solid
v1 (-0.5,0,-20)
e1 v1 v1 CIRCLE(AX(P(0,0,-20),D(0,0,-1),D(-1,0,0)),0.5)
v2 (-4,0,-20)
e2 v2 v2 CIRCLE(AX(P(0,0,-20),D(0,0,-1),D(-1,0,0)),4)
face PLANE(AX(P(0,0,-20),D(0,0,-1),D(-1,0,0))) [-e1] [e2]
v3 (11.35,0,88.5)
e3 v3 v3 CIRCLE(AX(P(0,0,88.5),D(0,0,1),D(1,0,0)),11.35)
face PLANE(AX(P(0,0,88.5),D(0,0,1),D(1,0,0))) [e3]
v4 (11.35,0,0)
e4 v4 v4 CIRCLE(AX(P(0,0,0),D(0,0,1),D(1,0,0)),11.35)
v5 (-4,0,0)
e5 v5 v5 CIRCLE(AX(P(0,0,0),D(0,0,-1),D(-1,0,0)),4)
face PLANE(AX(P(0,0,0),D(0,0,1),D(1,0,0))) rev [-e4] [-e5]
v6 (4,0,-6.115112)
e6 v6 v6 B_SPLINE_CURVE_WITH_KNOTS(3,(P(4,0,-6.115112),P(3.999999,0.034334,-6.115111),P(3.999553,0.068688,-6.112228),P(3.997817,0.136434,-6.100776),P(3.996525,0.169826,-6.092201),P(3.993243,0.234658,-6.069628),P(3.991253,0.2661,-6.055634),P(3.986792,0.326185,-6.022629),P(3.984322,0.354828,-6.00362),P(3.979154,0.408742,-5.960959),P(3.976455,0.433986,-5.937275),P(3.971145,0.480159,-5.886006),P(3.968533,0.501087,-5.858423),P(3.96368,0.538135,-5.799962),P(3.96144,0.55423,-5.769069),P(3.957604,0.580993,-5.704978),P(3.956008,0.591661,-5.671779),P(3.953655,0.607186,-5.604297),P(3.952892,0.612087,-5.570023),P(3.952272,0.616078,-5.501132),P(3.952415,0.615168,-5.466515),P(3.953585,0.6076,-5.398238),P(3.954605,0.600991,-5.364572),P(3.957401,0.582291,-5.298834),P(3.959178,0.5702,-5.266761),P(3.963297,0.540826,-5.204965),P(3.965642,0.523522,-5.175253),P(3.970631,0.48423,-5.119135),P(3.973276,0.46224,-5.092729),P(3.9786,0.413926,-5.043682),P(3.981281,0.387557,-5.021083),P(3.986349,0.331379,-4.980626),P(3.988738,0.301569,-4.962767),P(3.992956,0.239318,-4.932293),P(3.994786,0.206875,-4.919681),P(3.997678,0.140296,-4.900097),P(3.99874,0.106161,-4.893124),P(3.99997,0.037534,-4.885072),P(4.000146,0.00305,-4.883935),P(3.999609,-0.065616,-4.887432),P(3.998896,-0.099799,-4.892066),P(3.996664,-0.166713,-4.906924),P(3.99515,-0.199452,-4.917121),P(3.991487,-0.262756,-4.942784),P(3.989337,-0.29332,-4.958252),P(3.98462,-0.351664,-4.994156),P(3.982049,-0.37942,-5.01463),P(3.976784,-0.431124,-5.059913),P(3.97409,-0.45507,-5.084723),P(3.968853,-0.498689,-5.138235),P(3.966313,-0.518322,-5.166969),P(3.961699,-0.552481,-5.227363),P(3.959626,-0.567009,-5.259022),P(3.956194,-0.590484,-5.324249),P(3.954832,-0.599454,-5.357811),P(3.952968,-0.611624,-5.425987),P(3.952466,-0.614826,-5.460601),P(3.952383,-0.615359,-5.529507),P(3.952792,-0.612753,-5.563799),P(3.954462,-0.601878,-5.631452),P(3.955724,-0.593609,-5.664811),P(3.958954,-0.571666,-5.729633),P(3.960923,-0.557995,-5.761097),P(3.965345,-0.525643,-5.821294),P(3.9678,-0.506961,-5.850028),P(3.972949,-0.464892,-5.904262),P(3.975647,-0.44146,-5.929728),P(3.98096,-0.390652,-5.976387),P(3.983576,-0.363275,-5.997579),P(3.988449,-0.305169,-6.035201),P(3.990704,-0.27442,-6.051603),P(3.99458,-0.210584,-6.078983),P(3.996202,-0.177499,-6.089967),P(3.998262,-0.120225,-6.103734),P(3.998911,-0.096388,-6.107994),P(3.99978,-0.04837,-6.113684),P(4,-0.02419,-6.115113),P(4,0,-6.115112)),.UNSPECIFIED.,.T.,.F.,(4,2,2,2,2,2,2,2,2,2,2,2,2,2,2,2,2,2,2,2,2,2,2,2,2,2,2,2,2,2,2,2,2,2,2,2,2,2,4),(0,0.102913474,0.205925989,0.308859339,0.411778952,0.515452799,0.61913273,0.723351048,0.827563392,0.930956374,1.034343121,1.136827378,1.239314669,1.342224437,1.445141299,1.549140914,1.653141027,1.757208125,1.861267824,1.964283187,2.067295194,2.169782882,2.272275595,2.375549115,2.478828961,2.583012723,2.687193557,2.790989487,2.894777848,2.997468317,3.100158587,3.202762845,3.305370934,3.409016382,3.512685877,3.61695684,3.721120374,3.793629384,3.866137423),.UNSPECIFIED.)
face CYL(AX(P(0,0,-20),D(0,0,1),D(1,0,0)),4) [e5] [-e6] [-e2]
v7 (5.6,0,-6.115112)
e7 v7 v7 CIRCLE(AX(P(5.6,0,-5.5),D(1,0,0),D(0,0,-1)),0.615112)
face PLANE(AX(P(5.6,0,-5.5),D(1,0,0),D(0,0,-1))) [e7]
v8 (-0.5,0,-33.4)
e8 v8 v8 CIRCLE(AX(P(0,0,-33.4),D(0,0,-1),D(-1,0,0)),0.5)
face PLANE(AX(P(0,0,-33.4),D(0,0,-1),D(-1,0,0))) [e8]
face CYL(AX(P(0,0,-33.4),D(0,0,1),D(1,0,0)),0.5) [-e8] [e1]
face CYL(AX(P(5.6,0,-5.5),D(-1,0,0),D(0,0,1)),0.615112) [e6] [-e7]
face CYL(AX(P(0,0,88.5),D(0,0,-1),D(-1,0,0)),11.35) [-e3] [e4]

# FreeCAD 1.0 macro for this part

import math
import FreeCAD as App
import Part
import Sketcher

V = App.Vector


def add_polygon(sketch, points):
    """Adds a closed chain of lines whose ends are joined by coincident constraints."""
    first, n = sketch.GeometryCount, len(points)
    for a, b in zip(points, points[1:] + points[:1]):
        sketch.addGeometry(Part.LineSegment(App.Vector(*a, 0), App.Vector(*b, 0)), False)
    for i in range(n):
        sketch.addConstraint(Sketcher.Constraint("Coincident", first + i, 2, first + (i + 1) % n, 1))

doc = App.newDocument("Part")
body = doc.addObject("PartDesign::Body", "Body")

# Sketch on XY plane
sketch1 = body.newObject("Sketcher::SketchObject", "Sketch")
sketch1.AttachmentSupport = (doc.getObject("XY_Plane"), [""])
sketch1.MapMode = "FlatFace"
sketch1.addGeometry(Part.Circle(V(0, 0, 0), V(0, 0, 1), 11), False)
sketch1.addConstraint(Sketcher.Constraint("Coincident", 0, 3, -1, 1))
sketch1.addConstraint(Sketcher.Constraint("Diameter", 0, 22.7))
pad1 = body.newObject("PartDesign::Pad", "Pad")
pad1.Profile = sketch1
pad1.Length = 88.5

# Sketch on XY plane
sketch2 = body.newObject("Sketcher::SketchObject", "Sketch001")
sketch2.AttachmentSupport = (doc.getObject("XY_Plane"), [""])
sketch2.MapMode = "FlatFace"
sketch2.addGeometry(Part.Circle(V(0, 0, 0), V(0, 0, 1), 4), False)
sketch2.addConstraint(Sketcher.Constraint("Coincident", 0, 3, -1, 1))
sketch2.addConstraint(Sketcher.Constraint("Diameter", 0, 8.0))
pad2 = body.newObject("PartDesign::Pad", "Pad001")
pad2.Profile = sketch2
pad2.Length = 20
pad2.Reversed = True

# Sketch on XY plane
sketch3 = body.newObject("Sketcher::SketchObject", "Sketch002")
sketch3.AttachmentSupport = (doc.getObject("XY_Plane"), [""])
sketch3.MapMode = "FlatFace"
add_polygon(sketch3, [(0, 7), (0, -4), (-0.6, -4), (-0.6, 7)])  # lines 0-3
sketch3.addConstraint(Sketcher.Constraint("Vertical", 0))
sketch3.addConstraint(Sketcher.Constraint("Horizontal", 1))
sketch3.addConstraint(Sketcher.Constraint("Vertical", 2))
sketch3.addConstraint(Sketcher.Constraint("Horizontal", 3))
sketch3.addConstraint(Sketcher.Constraint("PointOnObject", 0, 2, -2))
sketch3.addConstraint(Sketcher.Constraint("DistanceY", 0, 2, -1, 1, 4.0))
sketch3.addConstraint(Sketcher.Constraint("DistanceY", 0, 2, 0, 1, 10.980801))
sketch3.addConstraint(Sketcher.Constraint("DistanceX", 1, 2, 1, 1, 0.590658))
pad3 = body.newObject("PartDesign::Pad", "Pad002")
pad3.Profile = sketch3
pad3.Length = 20
pad3.Reversed = True

# Sketch on YZ plane
sketch4 = body.newObject("Sketcher::SketchObject", "Sketch003")
sketch4.AttachmentSupport = (doc.getObject("YZ_Plane"), [""])
sketch4.MapMode = "FlatFace"
sketch4.addGeometry(Part.Circle(V(0, -5.5, 0), V(0, 0, 1), 0.6), False)
sketch4.addConstraint(Sketcher.Constraint("PointOnObject", 0, 3, -2))
sketch4.addConstraint(Sketcher.Constraint("DistanceY", 0, 3, -1, 1, 5.5))
sketch4.addConstraint(Sketcher.Constraint("Diameter", 0, 1.230225))
pad4 = body.newObject("PartDesign::Pad", "Pad003")
pad4.Profile = sketch4
pad4.Length = 5.6

# Sketch on XY plane
sketch5 = body.newObject("Sketcher::SketchObject", "Sketch004")
sketch5.AttachmentSupport = (doc.getObject("XY_Plane"), [""])
sketch5.MapMode = "FlatFace"
sketch5.addGeometry(Part.LineSegment(V(-0.6, 7, 0), V(0, 7, 0)), False)
sketch5.addGeometry(Part.LineSegment(V(0, 7, 0), V(0, 4, 0)), False)
sketch5.addGeometry(Part.ArcOfCircle(Part.Circle(V(0, 0, 0), V(0, 0, 1), 4), math.radians(90), math.radians(98.49)), False)
sketch5.addGeometry(Part.LineSegment(V(-0.6, 4, 0), V(-0.6, 7, 0)), False)
sketch5.addConstraint(Sketcher.Constraint("Coincident", 0, 2, 1, 1))
sketch5.addConstraint(Sketcher.Constraint("Coincident", 1, 2, 2, 1))
sketch5.addConstraint(Sketcher.Constraint("Coincident", 2, 2, 3, 1))
sketch5.addConstraint(Sketcher.Constraint("Coincident", 3, 2, 0, 1))
sketch5.addConstraint(Sketcher.Constraint("Horizontal", 0))
sketch5.addConstraint(Sketcher.Constraint("Vertical", 1))
sketch5.addConstraint(Sketcher.Constraint("Vertical", 3))
sketch5.addConstraint(Sketcher.Constraint("Coincident", 2, 3, -1, 1))
sketch5.addConstraint(Sketcher.Constraint("PointOnObject", 0, 2, -2))
sketch5.addConstraint(Sketcher.Constraint("Radius", 2, 4.0))
sketch5.addConstraint(Sketcher.Constraint("DistanceY", 1, 2, 1, 1, 2.980801))
sketch5.addConstraint(Sketcher.Constraint("DistanceY", 3, 1, 3, 2, 3.024651))
pocket1 = body.newObject("PartDesign::Pocket", "Pocket")
pocket1.Profile = sketch5
pocket1.Length = 20

# Sketch on XY plane
sketch6 = body.newObject("Sketcher::SketchObject", "Sketch005")
sketch6.AttachmentSupport = (doc.getObject("XY_Plane"), [""])
sketch6.MapMode = "FlatFace"
sketch6.addGeometry(Part.ArcOfCircle(Part.Circle(V(0, 0, 0), V(0, 0, 1), 4), math.radians(-98.49), math.radians(-90)), False)
sketch6.addGeometry(Part.LineSegment(V(0, -4, 0), V(-0.591, -4, 0)), False)
sketch6.addGeometry(Part.LineSegment(V(-0.591, -4, 0), V(-0.591, -3.956, 0)), False)
sketch6.addConstraint(Sketcher.Constraint("Tangent", 0, 2, 1, 1))
sketch6.addConstraint(Sketcher.Constraint("Coincident", 1, 2, 2, 1))
sketch6.addConstraint(Sketcher.Constraint("Coincident", 2, 2, 0, 1))
sketch6.addConstraint(Sketcher.Constraint("Horizontal", 1))
sketch6.addConstraint(Sketcher.Constraint("Vertical", 2))
sketch6.addConstraint(Sketcher.Constraint("Coincident", 0, 3, -1, 1))
sketch6.addConstraint(Sketcher.Constraint("Radius", 0, 4.0))
sketch6.addConstraint(Sketcher.Constraint("DistanceY", 2, 1, 2, 2, 0.04385))
pocket2 = body.newObject("PartDesign::Pocket", "Pocket001")
pocket2.Profile = sketch6
pocket2.Length = 20

# Sketch on XY plane
sketch7 = body.newObject("Sketcher::SketchObject", "Sketch006")
sketch7.AttachmentSupport = (doc.getObject("XY_Plane"), [""])
sketch7.MapMode = "FlatFace"
sketch7.AttachmentOffset = App.Placement(V(0, 0, -20), App.Rotation())
sketch7.addGeometry(Part.Circle(V(0, 0, 0), V(0, 0, 1), 0.5), False)
sketch7.addConstraint(Sketcher.Constraint("Coincident", 0, 3, -1, 1))
sketch7.addConstraint(Sketcher.Constraint("Diameter", 0, 1.0))
pad5 = body.newObject("PartDesign::Pad", "Pad004")
pad5.Profile = sketch7
pad5.Length = 13.4
pad5.Reversed = True

doc.recompute()
